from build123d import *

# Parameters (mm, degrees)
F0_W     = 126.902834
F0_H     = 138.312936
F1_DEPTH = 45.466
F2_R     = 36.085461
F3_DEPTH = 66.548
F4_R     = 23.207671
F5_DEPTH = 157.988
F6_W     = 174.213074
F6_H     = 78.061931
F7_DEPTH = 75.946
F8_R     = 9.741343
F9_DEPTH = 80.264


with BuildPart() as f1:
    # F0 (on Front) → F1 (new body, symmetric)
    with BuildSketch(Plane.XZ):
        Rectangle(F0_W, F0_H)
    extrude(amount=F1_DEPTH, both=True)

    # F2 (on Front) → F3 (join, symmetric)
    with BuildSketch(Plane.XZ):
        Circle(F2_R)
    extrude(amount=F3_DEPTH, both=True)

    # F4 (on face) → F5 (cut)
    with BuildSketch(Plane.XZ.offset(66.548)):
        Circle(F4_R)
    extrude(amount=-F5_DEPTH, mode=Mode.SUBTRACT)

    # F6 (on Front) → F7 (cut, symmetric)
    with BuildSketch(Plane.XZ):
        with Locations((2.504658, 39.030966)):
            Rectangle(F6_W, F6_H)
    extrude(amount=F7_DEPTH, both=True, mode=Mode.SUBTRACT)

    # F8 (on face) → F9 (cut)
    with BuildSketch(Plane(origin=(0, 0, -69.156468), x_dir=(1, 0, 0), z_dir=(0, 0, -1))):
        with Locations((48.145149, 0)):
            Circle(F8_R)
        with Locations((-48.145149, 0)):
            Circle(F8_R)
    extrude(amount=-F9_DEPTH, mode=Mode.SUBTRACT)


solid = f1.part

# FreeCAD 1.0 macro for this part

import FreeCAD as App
import Part
import Sketcher
from FreeCAD import Vector
Q = App.Units.Quantity

doc = App.newDocument("Part")
body = doc.addObject("PartDesign::Body", "Body")

# Sketch on XZ plane
sketch1 = doc.addObject("Sketcher::SketchObject", "Sketch")
body.addObject(sketch1)
sketch1.AttachmentSupport = (doc.XZ_Plane, [""])
sketch1.MapMode = "FlatFace"
sketch1.addGeometry([
    Part.LineSegment(Vector(-63, 69, 0), Vector(-63, -69, 0)),
    Part.LineSegment(Vector(-63, -69, 0), Vector(63, -69, 0)),
    Part.LineSegment(Vector(63, -69, 0), Vector(63, 69, 0)),
    Part.LineSegment(Vector(63, 69, 0), Vector(-63, 69, 0)),
], False)
sketch1.addConstraint([
    Sketcher.Constraint("Coincident", 0, 2, 1, 1),
    Sketcher.Constraint("Coincident", 1, 2, 2, 1),
    Sketcher.Constraint("Coincident", 2, 2, 3, 1),
    Sketcher.Constraint("Coincident", 3, 2, 0, 1),
    Sketcher.Constraint("Vertical", 0),
    Sketcher.Constraint("Horizontal", 1),
    Sketcher.Constraint("Vertical", 2),
    Sketcher.Constraint("Horizontal", 3),
    Sketcher.Constraint("Symmetric", 0, 2, 2, 2, -1, 1),
    Sketcher.Constraint("DistanceX", 1, 1, 1, 2, 126.902834),
    Sketcher.Constraint("DistanceY", 0, 2, 0, 1, 138.312936),
])
pad1 = doc.addObject("PartDesign::Pad", "Pad")
body.addObject(pad1)
pad1.Profile = sketch1
pad1.Length = Q("3.58 in")
pad1.Midplane = True

# Sketch on XZ plane
sketch2 = doc.addObject("Sketcher::SketchObject", "Sketch001")
body.addObject(sketch2)
sketch2.AttachmentSupport = (doc.XZ_Plane, [""])
sketch2.MapMode = "FlatFace"
sketch2.addGeometry(Part.Circle(Vector(0, 0, 0), Vector(0, 0, 1), 36), False)
sketch2.addConstraint([
    Sketcher.Constraint("Coincident", 0, 3, -1, 1),
    Sketcher.Constraint("Diameter", 0, 72.170922),
])
pad2 = doc.addObject("PartDesign::Pad", "Pad001")
body.addObject(pad2)
pad2.Profile = sketch2
pad2.Length = Q("5.24 in")
pad2.Midplane = True

# Sketch on XZ plane
sketch3 = doc.addObject("Sketcher::SketchObject", "Sketch002")
body.addObject(sketch3)
sketch3.AttachmentSupport = (doc.XZ_Plane, [""])
sketch3.MapMode = "FlatFace"
sketch3.AttachmentOffset = App.Placement(Vector(0, 0, 2.62 * 25.4), App.Rotation())
sketch3.addGeometry(Part.Circle(Vector(0, 0, 0), Vector(0, 0, 1), 23), False)
sketch3.addConstraint([
    Sketcher.Constraint("Coincident", 0, 3, -1, 1),
    Sketcher.Constraint("Diameter", 0, 46.415342),
])
pocket1 = doc.addObject("PartDesign::Pocket", "Pocket")
body.addObject(pocket1)
pocket1.Profile = sketch3
pocket1.Length = Q("6.22 in")

# Sketch on XZ plane
sketch4 = doc.addObject("Sketcher::SketchObject", "Sketch003")
body.addObject(sketch4)
sketch4.AttachmentSupport = (doc.XZ_Plane, [""])
sketch4.MapMode = "FlatFace"
sketch4.addGeometry([
    Part.LineSegment(Vector(-85, 78, 0), Vector(-85, 0, 0)),
    Part.LineSegment(Vector(-85, 0, 0), Vector(90, 0, 0)),
    Part.LineSegment(Vector(90, 0, 0), Vector(90, 78, 0)),
    Part.LineSegment(Vector(90, 78, 0), Vector(-85, 78, 0)),
], False)
sketch4.addConstraint([
    Sketcher.Constraint("Coincident", 0, 2, 1, 1),
    Sketcher.Constraint("Coincident", 1, 2, 2, 1),
    Sketcher.Constraint("Coincident", 2, 2, 3, 1),
    Sketcher.Constraint("Coincident", 3, 2, 0, 1),
    Sketcher.Constraint("Vertical", 0),
    Sketcher.Constraint("Horizontal", 1),
    Sketcher.Constraint("Vertical", 2),
    Sketcher.Constraint("Horizontal", 3),
    Sketcher.Constraint("PointOnObject", 0, 2, -1),
    Sketcher.Constraint("DistanceX", -1, 1, 1, 2, Q("3.5279998 in")),
    Sketcher.Constraint("DistanceY", 0, 2, 0, 1, 78.061931),
    Sketcher.Constraint("DistanceX", 1, 1, 1, 2, 174.213074),
])
pocket2 = doc.addObject("PartDesign::Pocket", "Pocket001")
body.addObject(pocket2)
pocket2.Profile = sketch4
pocket2.Length = Q("5.98 in")
pocket2.Midplane = True

# Sketch on XY plane
sketch5 = doc.addObject("Sketcher::SketchObject", "Sketch004")
body.addObject(sketch5)
sketch5.AttachmentSupport = (doc.XY_Plane, [""])
sketch5.MapMode = "FlatFace"
sketch5.AttachmentOffset = App.Placement(Vector(0, 0, -69.156468), App.Rotation())
sketch5.addGeometry([
    Part.Circle(Vector(48, 0, 0), Vector(0, 0, 1), 10),
    Part.Circle(Vector(-48, 0, 0), Vector(0, 0, 1), 10),
], False)
sketch5.addConstraint([
    Sketcher.Constraint("Equal", 0, 1),
    Sketcher.Constraint("Symmetric", 0, 3, 1, 3, -1, 1),
    Sketcher.Constraint("PointOnObject", 0, 3, -1),
    Sketcher.Constraint("Diameter", 0, 19.482686),
    Sketcher.Constraint("DistanceX", 1, 3, 0, 3, 96.290298),
])
pocket3 = doc.addObject("PartDesign::Pocket", "Pocket002")
body.addObject(pocket3)
pocket3.Profile = sketch5
pocket3.Length = Q("3.16 in")
pocket3.Reversed = True

doc.recompute()
